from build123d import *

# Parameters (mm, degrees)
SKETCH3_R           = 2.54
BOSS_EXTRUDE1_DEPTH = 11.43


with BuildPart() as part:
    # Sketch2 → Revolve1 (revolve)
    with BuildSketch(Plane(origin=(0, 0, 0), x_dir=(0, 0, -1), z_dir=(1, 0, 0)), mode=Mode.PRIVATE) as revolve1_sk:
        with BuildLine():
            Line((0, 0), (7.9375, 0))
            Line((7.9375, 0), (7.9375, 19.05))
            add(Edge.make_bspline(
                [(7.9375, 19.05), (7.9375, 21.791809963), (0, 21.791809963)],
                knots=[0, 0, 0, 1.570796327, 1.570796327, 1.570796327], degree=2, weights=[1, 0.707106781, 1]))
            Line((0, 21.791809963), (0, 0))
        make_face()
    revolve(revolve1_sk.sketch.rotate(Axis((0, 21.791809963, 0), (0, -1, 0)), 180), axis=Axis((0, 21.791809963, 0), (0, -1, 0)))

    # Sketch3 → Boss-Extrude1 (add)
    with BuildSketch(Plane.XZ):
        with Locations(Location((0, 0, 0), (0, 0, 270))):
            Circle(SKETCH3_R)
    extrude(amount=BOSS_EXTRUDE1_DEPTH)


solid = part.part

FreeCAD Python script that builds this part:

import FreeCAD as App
import Part
import Sketcher
from FreeCAD import Vector
Q = App.Units.Quantity

doc = App.newDocument("Part")
body = doc.addObject("PartDesign::Body", "Body")

# Sketch on YZ plane
sketch1 = body.newObject("Sketcher::SketchObject", "Sketch")
sketch1.AttachmentSupport = (doc.getObject("YZ_Plane"), [""])
sketch1.MapMode = "FlatFace"
sketch1.addGeometry([
    Part.LineSegment(Vector(0, 0, 0), Vector(0, -7.9375, 0)),
    Part.LineSegment(Vector(0, -7.9375, 0), Vector(19.05, -7.9375, 0)),
    Part.BSplineCurve([Vector(19.05, -7.9375, 0), Vector(21.79181, -7.9375, 0), Vector(21.79181, 0, 0)], [3, 3], [0, 1.570796327], False, 2, [1, 0.707106781, 1], False),
    Part.LineSegment(Vector(21.79181, 0, 0), Vector(0, 0, 0)),
], False)
sketch1.addConstraint([
    Sketcher.Constraint("Block", 2),
    Sketcher.Constraint("Coincident", 0, 2, 1, 1),
    Sketcher.Constraint("Coincident", 1, 2, 2, 1),
    Sketcher.Constraint("Coincident", 2, 2, 3, 1),
    Sketcher.Constraint("Coincident", 3, 2, 0, 1),
    Sketcher.Constraint("Vertical", 0),
    Sketcher.Constraint("Horizontal", 1),
    Sketcher.Constraint("Horizontal", 3),
    Sketcher.Constraint("PointOnObject", 0, 2, -2),
])
revolution = body.newObject("PartDesign::Revolution", "Revolution")
revolution.Profile = sketch1
revolution.ReferenceAxis = (sketch1, ["H_Axis"])
revolution.Angle = 360

# Sketch on XZ plane
sketch2 = body.newObject("Sketcher::SketchObject", "Sketch001")
sketch2.AttachmentSupport = (doc.getObject("XZ_Plane"), [""])
sketch2.MapMode = "FlatFace"
sketch2.addGeometry(Part.Circle(Vector(0, 0, 0), Vector(0, 0, 1), 2.54), False)
sketch2.addConstraint([
    Sketcher.Constraint("Coincident", 0, 3, -1, 1),
    Sketcher.Constraint("Diameter", 0, Q("0.2 in")),
])
pad1 = body.newObject("PartDesign::Pad", "Pad")
pad1.Profile = sketch2
pad1.Length = Q("0.45 in")

doc.recompute()
